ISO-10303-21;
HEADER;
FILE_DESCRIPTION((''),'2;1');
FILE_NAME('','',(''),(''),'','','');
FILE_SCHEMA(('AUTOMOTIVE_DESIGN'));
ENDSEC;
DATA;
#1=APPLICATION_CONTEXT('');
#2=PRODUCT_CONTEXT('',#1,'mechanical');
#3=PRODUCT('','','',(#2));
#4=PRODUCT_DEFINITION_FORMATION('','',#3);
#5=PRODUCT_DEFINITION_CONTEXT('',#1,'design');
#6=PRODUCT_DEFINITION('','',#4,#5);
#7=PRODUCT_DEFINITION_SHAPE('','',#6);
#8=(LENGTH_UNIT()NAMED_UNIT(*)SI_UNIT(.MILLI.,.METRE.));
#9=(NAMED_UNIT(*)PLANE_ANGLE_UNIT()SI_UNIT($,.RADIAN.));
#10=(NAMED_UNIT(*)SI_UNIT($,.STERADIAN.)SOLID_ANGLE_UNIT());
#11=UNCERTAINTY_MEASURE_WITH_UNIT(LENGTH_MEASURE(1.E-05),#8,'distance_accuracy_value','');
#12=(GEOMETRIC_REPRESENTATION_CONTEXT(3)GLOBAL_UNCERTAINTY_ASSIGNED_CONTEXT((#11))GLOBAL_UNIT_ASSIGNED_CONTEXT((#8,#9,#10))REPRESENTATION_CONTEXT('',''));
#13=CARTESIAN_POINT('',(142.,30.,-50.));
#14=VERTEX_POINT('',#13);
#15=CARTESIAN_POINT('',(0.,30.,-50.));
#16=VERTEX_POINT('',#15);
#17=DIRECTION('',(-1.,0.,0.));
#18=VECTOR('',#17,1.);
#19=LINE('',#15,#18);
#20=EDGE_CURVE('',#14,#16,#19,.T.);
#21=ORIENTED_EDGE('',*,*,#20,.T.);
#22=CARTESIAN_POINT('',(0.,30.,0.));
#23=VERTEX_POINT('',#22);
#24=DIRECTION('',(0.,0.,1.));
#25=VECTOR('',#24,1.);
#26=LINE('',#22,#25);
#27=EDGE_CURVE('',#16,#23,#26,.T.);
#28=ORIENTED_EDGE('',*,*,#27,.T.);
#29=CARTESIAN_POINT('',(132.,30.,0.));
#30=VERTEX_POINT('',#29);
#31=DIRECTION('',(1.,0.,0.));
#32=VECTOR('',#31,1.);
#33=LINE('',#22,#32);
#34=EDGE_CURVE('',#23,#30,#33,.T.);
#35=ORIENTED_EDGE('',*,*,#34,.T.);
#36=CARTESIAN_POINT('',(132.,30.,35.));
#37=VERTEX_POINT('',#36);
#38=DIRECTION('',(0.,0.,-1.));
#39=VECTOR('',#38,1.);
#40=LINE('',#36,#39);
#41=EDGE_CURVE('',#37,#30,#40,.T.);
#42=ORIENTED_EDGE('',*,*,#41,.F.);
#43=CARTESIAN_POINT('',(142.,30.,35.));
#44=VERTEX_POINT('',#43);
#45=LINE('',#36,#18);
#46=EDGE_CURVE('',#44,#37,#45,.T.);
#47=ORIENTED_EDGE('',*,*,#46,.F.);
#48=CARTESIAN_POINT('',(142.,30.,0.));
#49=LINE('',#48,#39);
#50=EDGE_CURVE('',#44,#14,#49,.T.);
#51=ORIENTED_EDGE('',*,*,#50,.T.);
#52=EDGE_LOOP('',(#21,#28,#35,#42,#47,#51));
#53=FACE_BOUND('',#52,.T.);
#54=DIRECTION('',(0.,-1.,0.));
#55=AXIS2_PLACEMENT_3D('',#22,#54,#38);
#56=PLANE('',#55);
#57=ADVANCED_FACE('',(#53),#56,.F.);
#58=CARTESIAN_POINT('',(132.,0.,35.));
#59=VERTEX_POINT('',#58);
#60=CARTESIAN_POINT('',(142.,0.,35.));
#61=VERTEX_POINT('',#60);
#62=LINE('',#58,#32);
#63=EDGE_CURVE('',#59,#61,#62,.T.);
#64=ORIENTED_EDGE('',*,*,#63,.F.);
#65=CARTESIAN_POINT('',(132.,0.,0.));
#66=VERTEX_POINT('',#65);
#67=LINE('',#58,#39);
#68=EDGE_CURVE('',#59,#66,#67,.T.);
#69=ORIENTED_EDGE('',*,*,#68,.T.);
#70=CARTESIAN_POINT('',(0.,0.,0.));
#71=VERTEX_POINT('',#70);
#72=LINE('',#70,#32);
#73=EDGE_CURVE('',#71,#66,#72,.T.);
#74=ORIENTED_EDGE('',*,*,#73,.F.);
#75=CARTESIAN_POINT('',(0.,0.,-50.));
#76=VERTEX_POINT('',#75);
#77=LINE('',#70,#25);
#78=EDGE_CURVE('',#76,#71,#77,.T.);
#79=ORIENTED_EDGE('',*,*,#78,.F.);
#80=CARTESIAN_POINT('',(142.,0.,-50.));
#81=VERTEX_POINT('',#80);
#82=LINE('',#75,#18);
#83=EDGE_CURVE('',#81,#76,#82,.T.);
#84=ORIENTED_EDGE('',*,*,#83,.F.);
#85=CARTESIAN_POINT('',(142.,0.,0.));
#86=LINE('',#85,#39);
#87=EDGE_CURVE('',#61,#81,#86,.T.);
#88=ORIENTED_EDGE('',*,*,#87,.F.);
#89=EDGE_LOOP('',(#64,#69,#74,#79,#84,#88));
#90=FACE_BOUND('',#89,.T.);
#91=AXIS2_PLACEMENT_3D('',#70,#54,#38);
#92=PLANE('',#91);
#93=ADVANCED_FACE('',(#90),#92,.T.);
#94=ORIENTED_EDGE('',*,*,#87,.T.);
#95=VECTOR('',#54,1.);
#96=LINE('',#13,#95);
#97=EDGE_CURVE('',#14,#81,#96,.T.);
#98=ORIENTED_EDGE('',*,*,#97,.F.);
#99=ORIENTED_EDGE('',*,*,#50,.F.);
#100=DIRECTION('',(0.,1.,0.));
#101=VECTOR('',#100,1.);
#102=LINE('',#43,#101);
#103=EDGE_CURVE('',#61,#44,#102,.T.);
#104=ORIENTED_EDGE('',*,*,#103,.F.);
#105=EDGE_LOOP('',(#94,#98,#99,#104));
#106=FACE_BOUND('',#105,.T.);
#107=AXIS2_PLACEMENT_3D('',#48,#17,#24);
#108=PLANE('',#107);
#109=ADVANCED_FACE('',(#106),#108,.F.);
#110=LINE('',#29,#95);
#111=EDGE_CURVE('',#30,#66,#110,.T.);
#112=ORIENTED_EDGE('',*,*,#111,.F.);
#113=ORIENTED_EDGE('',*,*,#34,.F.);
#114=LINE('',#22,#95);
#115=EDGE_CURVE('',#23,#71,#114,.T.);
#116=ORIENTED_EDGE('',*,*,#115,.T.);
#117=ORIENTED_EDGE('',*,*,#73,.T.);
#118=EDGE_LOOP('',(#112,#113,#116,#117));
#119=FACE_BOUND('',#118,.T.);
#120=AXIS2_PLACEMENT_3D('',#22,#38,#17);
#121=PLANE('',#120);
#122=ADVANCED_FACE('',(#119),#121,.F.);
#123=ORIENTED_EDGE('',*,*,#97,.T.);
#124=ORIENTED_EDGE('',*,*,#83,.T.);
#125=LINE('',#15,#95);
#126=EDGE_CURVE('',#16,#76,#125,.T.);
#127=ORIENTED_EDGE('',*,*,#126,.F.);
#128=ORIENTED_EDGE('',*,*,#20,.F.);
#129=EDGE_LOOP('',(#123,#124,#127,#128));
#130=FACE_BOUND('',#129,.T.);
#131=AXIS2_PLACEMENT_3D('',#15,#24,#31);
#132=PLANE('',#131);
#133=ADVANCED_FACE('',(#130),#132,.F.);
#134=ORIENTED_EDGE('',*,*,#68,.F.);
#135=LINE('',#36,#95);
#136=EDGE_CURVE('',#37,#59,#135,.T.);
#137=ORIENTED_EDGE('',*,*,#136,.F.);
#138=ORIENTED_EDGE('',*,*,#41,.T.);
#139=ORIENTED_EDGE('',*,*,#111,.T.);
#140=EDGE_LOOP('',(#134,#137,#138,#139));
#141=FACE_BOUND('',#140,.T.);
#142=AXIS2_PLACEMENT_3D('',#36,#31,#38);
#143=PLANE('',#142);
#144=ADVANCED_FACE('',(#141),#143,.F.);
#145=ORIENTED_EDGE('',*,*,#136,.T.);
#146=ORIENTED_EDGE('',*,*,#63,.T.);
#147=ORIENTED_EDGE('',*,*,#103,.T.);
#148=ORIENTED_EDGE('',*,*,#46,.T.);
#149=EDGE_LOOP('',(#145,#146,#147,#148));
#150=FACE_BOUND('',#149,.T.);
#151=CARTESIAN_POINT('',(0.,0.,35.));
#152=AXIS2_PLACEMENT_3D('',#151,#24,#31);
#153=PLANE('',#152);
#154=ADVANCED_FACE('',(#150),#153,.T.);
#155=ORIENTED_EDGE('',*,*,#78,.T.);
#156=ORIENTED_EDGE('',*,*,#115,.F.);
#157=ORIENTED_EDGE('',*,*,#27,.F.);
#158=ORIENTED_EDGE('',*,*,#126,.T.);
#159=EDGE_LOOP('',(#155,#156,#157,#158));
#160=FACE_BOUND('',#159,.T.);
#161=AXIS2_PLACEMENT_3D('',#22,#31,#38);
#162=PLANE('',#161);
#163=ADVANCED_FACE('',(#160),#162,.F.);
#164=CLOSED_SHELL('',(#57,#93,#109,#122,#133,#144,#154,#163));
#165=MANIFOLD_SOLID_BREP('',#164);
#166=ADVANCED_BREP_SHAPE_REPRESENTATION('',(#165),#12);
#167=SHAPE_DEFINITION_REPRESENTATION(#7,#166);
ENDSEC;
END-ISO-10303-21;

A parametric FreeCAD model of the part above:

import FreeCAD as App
import Part
import Sketcher
from FreeCAD import Vector
Q = App.Units.Quantity


def add_polygon(sketch, points):
    """Adds a closed chain of lines whose ends are joined by coincident constraints."""
    first, n = sketch.GeometryCount, len(points)
    for a, b in zip(points, points[1:] + points[:1]):
        sketch.addGeometry(Part.LineSegment(App.Vector(*a, 0), App.Vector(*b, 0)), False)
    for i in range(n):
        sketch.addConstraint(Sketcher.Constraint("Coincident", first + i, 2, first + (i + 1) % n, 1))

doc = App.newDocument("Part")
body = doc.addObject("PartDesign::Body", "Body")

# Sketch on XZ plane
sketch1 = body.newObject("Sketcher::SketchObject", "Sketch")
sketch1.AttachmentSupport = (doc.getObject("XZ_Plane"), [""])
sketch1.MapMode = "FlatFace"
add_polygon(sketch1, [(0, -50), (0, 0), (142, 0), (142, -50)])  # lines 0-3
sketch1.addConstraint(Sketcher.Constraint("Vertical", 0))
sketch1.addConstraint(Sketcher.Constraint("Horizontal", 1))
sketch1.addConstraint(Sketcher.Constraint("Vertical", 2))
sketch1.addConstraint(Sketcher.Constraint("Horizontal", 3))
sketch1.addConstraint(Sketcher.Constraint("Coincident", 0, 2, -1, 1))
sketch1.addConstraint(Sketcher.Constraint("DistanceX", 1, 1, 1, 2, Q("142 mm")))
sketch1.addConstraint(Sketcher.Constraint("DistanceY", 0, 1, 0, 2, Q("50 mm")))
pad1 = body.newObject("PartDesign::Pad", "Pad")
pad1.Profile = sketch1
pad1.Length = 30
pad1.Reversed = True

# Sketch on XY plane
sketch2 = body.newObject("Sketcher::SketchObject", "Sketch001")
sketch2.AttachmentSupport = (doc.getObject("XY_Plane"), [""])
sketch2.MapMode = "FlatFace"
add_polygon(sketch2, [(132, 30), (132, 0), (142, 0), (142, 30)])  # lines 0-3
sketch2.addConstraint(Sketcher.Constraint("Vertical", 0))
sketch2.addConstraint(Sketcher.Constraint("Horizontal", 1))
sketch2.addConstraint(Sketcher.Constraint("Vertical", 2))
sketch2.addConstraint(Sketcher.Constraint("Horizontal", 3))
sketch2.addConstraint(Sketcher.Constraint("PointOnObject", 0, 2, -1))
sketch2.addConstraint(Sketcher.Constraint("DistanceX", 1, 1, 1, 2, Q("10 mm")))
sketch2.addConstraint(Sketcher.Constraint("DistanceY", 0, 2, 0, 1, Q("30 mm")))
sketch2.addConstraint(Sketcher.Constraint("DistanceX", -1, 1, 0, 2, Q("132 mm")))
pad2 = body.newObject("PartDesign::Pad", "Pad001")
pad2.Profile = sketch2
pad2.Length = 35

doc.recompute()
